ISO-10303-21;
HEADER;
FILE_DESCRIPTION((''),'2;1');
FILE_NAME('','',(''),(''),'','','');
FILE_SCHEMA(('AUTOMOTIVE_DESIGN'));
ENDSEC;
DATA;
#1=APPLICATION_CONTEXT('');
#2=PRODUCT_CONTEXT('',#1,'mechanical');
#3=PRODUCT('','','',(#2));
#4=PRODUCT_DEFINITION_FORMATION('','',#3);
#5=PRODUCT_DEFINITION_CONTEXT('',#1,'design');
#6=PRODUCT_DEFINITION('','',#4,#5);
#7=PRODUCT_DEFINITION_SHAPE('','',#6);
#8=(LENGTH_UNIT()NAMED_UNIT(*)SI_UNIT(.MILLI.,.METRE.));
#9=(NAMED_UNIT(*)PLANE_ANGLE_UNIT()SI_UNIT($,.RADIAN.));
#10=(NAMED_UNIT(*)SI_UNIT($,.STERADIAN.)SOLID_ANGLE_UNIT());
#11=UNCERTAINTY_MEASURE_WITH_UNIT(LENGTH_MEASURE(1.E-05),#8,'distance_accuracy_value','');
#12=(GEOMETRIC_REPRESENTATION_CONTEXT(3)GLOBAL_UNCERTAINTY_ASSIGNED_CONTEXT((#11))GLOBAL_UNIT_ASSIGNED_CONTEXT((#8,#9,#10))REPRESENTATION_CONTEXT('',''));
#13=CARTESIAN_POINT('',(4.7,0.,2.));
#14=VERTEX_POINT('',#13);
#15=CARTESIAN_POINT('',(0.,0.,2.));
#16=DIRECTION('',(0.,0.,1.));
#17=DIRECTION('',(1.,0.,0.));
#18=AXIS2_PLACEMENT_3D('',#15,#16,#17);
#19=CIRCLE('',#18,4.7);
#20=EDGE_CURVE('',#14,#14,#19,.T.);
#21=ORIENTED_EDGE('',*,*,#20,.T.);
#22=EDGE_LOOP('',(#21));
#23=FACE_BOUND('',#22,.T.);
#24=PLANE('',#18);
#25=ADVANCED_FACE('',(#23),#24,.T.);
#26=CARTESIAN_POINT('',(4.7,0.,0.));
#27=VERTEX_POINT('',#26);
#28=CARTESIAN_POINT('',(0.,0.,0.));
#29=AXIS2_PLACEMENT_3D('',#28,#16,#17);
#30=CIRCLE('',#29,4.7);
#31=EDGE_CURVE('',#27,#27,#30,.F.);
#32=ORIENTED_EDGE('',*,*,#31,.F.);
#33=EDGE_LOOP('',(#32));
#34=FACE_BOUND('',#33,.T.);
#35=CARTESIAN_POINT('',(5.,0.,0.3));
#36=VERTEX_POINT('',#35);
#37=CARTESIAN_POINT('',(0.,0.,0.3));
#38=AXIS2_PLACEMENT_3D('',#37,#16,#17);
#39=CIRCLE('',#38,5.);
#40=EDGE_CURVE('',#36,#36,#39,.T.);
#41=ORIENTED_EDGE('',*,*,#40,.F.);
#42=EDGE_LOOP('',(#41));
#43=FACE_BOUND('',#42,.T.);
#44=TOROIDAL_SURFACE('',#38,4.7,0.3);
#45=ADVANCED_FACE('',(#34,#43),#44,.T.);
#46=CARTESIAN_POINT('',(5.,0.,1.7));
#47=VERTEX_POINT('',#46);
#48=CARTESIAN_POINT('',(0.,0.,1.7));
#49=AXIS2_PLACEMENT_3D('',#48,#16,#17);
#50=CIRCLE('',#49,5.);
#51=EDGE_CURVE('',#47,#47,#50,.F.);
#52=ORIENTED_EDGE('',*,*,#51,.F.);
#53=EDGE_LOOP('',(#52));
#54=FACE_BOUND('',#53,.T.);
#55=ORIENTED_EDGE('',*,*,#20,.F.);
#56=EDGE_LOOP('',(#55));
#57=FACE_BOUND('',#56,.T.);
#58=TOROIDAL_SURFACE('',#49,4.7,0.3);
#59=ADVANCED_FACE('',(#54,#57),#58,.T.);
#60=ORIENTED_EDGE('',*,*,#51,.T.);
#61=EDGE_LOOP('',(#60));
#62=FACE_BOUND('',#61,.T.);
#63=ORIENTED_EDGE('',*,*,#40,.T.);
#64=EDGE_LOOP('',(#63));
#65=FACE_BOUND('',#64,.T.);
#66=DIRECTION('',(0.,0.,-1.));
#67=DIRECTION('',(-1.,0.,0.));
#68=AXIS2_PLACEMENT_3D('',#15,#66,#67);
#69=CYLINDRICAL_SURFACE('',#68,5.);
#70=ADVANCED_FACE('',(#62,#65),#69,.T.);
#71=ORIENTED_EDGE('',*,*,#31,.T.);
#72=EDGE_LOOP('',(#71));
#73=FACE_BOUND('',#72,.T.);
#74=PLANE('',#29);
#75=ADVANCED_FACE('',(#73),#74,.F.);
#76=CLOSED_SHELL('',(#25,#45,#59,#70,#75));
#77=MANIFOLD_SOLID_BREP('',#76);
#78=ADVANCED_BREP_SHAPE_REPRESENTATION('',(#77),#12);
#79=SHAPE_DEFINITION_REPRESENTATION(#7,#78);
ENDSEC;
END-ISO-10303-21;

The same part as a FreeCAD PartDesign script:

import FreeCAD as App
import Part
import Sketcher

V = App.Vector


def edges_at(feature, points):
    """Names of the edges that pass closest to the given points."""
    edges = feature.Shape.Edges
    near = lambda p: min(range(len(edges)), key=lambda i: edges[i].distToShape(Part.Vertex(*p))[0])
    return sorted({f"Edge{near(p) + 1}" for p in points})

doc = App.newDocument("Part")
params = doc.addObject("Spreadsheet::Sheet", "Params")
for row, (alias, value) in enumerate([
    ("sketch1_diameter", "10 mm"),
    ("pad1_length", "2 mm"),
    ("fillet_radius", "0.3 mm"),
], start=1):
    params.set(f"A{row}", alias)
    params.set(f"B{row}", "=" + value)
    params.setAlias(f"B{row}", alias)

body = doc.addObject("PartDesign::Body", "Body")

# Sketch on XY plane
sketch1 = doc.addObject("Sketcher::SketchObject", "Sketch")
body.addObject(sketch1)
sketch1.AttachmentSupport = (doc.XY_Plane, [""])
sketch1.MapMode = "FlatFace"
sketch1.addGeometry(Part.Circle(V(0, 0, 0), V(0, 0, 1), 5), False)
sketch1.addConstraint(Sketcher.Constraint("Coincident", 0, 3, -1, 1))
sketch1.addConstraint(Sketcher.Constraint("Diameter", 0, 10.0))
sketch1.setExpression("Constraints[1]", "Params.sketch1_diameter")
pad1 = doc.addObject("PartDesign::Pad", "Pad")
body.addObject(pad1)
pad1.Profile = sketch1
pad1.setExpression("Length", "Params.pad1_length")
doc.recompute()

fillet = doc.addObject("PartDesign::Fillet", "Fillet")
body.addObject(fillet)
fillet.Base = (pad1, edges_at(pad1, [(-5, 0, 0), (-5, 0, 2)]))
fillet.setExpression("Radius", "Params.fillet_radius")

doc.recompute()
